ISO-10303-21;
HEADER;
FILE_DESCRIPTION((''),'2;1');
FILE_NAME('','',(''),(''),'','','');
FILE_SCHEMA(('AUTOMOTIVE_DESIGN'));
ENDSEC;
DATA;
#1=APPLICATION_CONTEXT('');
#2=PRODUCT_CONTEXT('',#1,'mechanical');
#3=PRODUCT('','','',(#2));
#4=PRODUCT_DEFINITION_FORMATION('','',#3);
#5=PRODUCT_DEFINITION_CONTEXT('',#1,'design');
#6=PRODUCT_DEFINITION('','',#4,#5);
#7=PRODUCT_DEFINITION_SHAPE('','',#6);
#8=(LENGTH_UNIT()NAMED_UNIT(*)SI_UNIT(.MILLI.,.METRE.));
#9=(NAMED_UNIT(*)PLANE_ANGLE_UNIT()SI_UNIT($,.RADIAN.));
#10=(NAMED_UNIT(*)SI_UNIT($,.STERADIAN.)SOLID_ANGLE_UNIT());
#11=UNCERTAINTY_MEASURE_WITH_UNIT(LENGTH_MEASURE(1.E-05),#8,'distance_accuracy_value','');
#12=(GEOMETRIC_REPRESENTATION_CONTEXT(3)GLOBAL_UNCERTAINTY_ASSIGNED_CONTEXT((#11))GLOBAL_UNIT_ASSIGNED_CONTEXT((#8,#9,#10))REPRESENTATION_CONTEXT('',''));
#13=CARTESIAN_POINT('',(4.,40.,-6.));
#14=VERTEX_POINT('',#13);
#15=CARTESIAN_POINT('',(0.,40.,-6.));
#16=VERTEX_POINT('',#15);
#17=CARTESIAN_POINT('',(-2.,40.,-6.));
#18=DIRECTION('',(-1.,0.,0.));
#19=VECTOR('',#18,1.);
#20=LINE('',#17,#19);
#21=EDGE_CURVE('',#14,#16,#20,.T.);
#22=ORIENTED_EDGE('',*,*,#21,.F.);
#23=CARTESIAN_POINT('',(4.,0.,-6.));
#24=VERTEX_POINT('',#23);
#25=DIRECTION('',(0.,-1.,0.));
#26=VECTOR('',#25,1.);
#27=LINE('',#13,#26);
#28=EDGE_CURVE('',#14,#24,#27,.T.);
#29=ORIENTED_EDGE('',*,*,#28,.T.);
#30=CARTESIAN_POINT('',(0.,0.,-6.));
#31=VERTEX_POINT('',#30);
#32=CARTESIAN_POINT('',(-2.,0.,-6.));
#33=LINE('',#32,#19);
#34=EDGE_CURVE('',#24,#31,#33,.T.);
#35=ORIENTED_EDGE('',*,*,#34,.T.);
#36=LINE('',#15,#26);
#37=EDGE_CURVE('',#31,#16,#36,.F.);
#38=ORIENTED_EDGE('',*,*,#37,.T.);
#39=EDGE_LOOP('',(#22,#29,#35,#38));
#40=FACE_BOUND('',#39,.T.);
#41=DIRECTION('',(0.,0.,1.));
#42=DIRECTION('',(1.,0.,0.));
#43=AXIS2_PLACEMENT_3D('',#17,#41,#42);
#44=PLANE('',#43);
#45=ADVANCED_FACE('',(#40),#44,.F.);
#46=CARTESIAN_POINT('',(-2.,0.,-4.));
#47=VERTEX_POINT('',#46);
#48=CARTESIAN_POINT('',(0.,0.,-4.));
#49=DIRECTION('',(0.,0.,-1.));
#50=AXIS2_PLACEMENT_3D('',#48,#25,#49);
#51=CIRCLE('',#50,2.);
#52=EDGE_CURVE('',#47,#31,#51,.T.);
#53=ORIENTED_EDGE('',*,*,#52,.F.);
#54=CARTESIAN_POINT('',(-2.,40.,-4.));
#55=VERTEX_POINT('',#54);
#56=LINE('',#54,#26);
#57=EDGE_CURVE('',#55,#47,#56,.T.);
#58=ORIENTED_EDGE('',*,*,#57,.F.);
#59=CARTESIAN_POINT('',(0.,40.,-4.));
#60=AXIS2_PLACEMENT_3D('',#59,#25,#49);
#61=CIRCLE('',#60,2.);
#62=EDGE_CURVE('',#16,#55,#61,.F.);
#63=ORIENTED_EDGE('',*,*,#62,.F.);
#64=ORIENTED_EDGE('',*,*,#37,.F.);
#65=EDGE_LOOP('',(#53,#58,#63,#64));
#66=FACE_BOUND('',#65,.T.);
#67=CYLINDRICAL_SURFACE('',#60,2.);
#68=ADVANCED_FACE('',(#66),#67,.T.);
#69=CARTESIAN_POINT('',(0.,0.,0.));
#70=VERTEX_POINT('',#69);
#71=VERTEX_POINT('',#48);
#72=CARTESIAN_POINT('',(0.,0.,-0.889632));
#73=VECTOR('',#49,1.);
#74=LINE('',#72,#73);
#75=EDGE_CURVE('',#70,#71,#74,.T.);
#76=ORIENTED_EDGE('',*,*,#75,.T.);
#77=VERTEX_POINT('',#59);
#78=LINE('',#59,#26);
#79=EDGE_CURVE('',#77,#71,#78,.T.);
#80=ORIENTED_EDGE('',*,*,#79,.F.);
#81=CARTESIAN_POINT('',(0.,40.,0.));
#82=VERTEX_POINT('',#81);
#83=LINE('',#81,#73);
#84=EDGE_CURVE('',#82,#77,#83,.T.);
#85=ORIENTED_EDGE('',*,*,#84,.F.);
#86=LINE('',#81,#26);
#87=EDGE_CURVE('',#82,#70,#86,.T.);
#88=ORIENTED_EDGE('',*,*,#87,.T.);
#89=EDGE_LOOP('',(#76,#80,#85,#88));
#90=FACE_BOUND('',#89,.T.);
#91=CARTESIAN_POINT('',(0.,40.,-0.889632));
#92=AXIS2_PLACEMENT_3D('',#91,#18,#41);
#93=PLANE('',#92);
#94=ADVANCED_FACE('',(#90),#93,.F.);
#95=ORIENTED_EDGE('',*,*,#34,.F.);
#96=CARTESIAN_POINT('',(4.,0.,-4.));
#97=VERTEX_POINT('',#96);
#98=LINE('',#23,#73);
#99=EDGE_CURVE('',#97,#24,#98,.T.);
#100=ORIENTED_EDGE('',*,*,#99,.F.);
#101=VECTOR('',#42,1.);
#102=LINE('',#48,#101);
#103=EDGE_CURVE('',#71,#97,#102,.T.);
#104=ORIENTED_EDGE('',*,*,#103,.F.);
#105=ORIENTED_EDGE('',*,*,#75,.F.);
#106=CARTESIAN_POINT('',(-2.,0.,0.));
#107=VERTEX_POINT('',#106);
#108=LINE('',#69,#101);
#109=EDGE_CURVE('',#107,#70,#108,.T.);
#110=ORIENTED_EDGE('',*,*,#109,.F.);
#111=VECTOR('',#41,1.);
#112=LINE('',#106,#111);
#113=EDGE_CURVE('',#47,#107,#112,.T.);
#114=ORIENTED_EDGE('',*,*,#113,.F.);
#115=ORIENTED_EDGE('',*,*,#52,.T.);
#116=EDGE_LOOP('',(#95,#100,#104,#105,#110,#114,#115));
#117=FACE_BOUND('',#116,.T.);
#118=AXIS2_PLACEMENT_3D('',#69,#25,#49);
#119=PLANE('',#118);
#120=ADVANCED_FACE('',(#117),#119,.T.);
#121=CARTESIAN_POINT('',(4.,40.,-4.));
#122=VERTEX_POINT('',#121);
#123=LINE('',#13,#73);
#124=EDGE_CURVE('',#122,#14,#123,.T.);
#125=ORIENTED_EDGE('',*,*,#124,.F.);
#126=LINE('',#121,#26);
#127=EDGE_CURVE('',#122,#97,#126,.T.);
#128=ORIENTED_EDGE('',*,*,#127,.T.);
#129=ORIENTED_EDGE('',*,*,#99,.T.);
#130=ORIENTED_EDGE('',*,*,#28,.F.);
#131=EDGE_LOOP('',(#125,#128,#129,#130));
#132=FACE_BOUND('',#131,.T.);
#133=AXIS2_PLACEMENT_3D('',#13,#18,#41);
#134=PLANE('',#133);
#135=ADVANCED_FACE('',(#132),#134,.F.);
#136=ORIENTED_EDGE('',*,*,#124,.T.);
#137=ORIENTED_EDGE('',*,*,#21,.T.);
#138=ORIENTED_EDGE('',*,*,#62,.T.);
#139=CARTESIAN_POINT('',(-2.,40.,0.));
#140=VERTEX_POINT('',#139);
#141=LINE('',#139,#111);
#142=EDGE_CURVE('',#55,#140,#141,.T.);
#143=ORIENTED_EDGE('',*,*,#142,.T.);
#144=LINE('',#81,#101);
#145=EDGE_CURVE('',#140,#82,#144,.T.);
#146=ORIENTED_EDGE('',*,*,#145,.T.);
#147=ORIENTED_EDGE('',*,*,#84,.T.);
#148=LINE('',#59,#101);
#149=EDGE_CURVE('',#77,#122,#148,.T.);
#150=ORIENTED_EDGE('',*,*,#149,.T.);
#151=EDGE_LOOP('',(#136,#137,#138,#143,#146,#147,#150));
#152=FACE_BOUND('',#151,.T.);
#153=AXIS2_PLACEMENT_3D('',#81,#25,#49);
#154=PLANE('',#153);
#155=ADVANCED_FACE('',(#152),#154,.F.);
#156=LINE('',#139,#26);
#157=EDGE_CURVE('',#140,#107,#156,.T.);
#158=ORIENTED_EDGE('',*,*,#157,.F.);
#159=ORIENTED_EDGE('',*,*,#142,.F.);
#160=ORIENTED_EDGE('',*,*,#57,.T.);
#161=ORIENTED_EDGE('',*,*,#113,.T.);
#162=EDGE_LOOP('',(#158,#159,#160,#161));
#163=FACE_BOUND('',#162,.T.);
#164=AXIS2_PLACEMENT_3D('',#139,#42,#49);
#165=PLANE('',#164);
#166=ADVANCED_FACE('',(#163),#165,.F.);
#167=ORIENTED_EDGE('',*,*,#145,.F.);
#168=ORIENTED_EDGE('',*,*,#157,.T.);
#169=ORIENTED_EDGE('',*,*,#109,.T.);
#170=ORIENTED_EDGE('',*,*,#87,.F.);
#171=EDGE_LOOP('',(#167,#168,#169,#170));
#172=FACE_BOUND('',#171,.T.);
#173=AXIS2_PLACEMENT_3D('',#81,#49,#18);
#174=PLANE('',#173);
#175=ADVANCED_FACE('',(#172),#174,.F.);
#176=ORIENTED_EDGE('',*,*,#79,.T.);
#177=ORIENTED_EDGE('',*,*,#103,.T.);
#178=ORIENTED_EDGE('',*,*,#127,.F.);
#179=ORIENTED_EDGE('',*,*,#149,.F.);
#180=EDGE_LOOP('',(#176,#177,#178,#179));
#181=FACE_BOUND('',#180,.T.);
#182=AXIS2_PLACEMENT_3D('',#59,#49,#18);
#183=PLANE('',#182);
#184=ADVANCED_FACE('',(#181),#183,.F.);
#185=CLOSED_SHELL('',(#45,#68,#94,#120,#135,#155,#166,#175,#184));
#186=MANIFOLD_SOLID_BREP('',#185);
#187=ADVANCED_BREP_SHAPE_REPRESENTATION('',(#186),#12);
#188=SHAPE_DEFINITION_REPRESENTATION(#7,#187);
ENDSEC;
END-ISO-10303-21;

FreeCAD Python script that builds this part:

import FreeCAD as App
import Part
import Sketcher
Q = App.Units.Quantity


def edges_at(feature, points):
    """Names of the edges that pass closest to the given points."""
    edges = feature.Shape.Edges
    near = lambda p: min(range(len(edges)), key=lambda i: edges[i].distToShape(Part.Vertex(*p))[0])
    return sorted({f"Edge{near(p) + 1}" for p in points})


def add_polygon(sketch, points):
    """Adds a closed chain of lines whose ends are joined by coincident constraints."""
    first, n = sketch.GeometryCount, len(points)
    for a, b in zip(points, points[1:] + points[:1]):
        sketch.addGeometry(Part.LineSegment(App.Vector(*a, 0), App.Vector(*b, 0)), False)
    for i in range(n):
        sketch.addConstraint(Sketcher.Constraint("Coincident", first + i, 2, first + (i + 1) % n, 1))

doc = App.newDocument("Part")
body = doc.addObject("PartDesign::Body", "Body")

sketch1 = body.newObject("Sketcher::SketchObject", "Sketch")
sketch1.AttachmentSupport = (doc.getObject("XZ_Plane"), [""])
sketch1.MapMode = "FlatFace"
add_polygon(sketch1, [(-2, 0), (0, 0), (0, -4), (4, -4), (4, -6), (-2, -6)])
sketch1.addConstraint(Sketcher.Constraint("Horizontal", 0))
sketch1.addConstraint(Sketcher.Constraint("Vertical", 1))
sketch1.addConstraint(Sketcher.Constraint("Horizontal", 2))
sketch1.addConstraint(Sketcher.Constraint("Vertical", 3))
sketch1.addConstraint(Sketcher.Constraint("Horizontal", 4))
sketch1.addConstraint(Sketcher.Constraint("Vertical", 5))
sketch1.addConstraint(Sketcher.Constraint("Coincident", 0, 2, -1, 1))
sketch1.addConstraint(Sketcher.Constraint("Equal", 2, 1))
sketch1.addConstraint(Sketcher.Constraint("Equal", 0, 3))
sketch1.addConstraint(Sketcher.Constraint("DistanceX", 0, 1, 0, 2, Q("2 mm")))
sketch1.addConstraint(Sketcher.Constraint("DistanceX", 2, 1, 2, 2, Q("4 mm")))
pad1 = body.newObject("PartDesign::Pad", "Pad")
pad1.Profile = sketch1
pad1.Length = 40
pad1.Reversed = True
doc.recompute()

fillet = body.newObject("PartDesign::Fillet", "Fillet")
fillet.Base = (pad1, edges_at(pad1, [(-2, 20, -6)]))
fillet.Radius = 2

doc.recompute()
